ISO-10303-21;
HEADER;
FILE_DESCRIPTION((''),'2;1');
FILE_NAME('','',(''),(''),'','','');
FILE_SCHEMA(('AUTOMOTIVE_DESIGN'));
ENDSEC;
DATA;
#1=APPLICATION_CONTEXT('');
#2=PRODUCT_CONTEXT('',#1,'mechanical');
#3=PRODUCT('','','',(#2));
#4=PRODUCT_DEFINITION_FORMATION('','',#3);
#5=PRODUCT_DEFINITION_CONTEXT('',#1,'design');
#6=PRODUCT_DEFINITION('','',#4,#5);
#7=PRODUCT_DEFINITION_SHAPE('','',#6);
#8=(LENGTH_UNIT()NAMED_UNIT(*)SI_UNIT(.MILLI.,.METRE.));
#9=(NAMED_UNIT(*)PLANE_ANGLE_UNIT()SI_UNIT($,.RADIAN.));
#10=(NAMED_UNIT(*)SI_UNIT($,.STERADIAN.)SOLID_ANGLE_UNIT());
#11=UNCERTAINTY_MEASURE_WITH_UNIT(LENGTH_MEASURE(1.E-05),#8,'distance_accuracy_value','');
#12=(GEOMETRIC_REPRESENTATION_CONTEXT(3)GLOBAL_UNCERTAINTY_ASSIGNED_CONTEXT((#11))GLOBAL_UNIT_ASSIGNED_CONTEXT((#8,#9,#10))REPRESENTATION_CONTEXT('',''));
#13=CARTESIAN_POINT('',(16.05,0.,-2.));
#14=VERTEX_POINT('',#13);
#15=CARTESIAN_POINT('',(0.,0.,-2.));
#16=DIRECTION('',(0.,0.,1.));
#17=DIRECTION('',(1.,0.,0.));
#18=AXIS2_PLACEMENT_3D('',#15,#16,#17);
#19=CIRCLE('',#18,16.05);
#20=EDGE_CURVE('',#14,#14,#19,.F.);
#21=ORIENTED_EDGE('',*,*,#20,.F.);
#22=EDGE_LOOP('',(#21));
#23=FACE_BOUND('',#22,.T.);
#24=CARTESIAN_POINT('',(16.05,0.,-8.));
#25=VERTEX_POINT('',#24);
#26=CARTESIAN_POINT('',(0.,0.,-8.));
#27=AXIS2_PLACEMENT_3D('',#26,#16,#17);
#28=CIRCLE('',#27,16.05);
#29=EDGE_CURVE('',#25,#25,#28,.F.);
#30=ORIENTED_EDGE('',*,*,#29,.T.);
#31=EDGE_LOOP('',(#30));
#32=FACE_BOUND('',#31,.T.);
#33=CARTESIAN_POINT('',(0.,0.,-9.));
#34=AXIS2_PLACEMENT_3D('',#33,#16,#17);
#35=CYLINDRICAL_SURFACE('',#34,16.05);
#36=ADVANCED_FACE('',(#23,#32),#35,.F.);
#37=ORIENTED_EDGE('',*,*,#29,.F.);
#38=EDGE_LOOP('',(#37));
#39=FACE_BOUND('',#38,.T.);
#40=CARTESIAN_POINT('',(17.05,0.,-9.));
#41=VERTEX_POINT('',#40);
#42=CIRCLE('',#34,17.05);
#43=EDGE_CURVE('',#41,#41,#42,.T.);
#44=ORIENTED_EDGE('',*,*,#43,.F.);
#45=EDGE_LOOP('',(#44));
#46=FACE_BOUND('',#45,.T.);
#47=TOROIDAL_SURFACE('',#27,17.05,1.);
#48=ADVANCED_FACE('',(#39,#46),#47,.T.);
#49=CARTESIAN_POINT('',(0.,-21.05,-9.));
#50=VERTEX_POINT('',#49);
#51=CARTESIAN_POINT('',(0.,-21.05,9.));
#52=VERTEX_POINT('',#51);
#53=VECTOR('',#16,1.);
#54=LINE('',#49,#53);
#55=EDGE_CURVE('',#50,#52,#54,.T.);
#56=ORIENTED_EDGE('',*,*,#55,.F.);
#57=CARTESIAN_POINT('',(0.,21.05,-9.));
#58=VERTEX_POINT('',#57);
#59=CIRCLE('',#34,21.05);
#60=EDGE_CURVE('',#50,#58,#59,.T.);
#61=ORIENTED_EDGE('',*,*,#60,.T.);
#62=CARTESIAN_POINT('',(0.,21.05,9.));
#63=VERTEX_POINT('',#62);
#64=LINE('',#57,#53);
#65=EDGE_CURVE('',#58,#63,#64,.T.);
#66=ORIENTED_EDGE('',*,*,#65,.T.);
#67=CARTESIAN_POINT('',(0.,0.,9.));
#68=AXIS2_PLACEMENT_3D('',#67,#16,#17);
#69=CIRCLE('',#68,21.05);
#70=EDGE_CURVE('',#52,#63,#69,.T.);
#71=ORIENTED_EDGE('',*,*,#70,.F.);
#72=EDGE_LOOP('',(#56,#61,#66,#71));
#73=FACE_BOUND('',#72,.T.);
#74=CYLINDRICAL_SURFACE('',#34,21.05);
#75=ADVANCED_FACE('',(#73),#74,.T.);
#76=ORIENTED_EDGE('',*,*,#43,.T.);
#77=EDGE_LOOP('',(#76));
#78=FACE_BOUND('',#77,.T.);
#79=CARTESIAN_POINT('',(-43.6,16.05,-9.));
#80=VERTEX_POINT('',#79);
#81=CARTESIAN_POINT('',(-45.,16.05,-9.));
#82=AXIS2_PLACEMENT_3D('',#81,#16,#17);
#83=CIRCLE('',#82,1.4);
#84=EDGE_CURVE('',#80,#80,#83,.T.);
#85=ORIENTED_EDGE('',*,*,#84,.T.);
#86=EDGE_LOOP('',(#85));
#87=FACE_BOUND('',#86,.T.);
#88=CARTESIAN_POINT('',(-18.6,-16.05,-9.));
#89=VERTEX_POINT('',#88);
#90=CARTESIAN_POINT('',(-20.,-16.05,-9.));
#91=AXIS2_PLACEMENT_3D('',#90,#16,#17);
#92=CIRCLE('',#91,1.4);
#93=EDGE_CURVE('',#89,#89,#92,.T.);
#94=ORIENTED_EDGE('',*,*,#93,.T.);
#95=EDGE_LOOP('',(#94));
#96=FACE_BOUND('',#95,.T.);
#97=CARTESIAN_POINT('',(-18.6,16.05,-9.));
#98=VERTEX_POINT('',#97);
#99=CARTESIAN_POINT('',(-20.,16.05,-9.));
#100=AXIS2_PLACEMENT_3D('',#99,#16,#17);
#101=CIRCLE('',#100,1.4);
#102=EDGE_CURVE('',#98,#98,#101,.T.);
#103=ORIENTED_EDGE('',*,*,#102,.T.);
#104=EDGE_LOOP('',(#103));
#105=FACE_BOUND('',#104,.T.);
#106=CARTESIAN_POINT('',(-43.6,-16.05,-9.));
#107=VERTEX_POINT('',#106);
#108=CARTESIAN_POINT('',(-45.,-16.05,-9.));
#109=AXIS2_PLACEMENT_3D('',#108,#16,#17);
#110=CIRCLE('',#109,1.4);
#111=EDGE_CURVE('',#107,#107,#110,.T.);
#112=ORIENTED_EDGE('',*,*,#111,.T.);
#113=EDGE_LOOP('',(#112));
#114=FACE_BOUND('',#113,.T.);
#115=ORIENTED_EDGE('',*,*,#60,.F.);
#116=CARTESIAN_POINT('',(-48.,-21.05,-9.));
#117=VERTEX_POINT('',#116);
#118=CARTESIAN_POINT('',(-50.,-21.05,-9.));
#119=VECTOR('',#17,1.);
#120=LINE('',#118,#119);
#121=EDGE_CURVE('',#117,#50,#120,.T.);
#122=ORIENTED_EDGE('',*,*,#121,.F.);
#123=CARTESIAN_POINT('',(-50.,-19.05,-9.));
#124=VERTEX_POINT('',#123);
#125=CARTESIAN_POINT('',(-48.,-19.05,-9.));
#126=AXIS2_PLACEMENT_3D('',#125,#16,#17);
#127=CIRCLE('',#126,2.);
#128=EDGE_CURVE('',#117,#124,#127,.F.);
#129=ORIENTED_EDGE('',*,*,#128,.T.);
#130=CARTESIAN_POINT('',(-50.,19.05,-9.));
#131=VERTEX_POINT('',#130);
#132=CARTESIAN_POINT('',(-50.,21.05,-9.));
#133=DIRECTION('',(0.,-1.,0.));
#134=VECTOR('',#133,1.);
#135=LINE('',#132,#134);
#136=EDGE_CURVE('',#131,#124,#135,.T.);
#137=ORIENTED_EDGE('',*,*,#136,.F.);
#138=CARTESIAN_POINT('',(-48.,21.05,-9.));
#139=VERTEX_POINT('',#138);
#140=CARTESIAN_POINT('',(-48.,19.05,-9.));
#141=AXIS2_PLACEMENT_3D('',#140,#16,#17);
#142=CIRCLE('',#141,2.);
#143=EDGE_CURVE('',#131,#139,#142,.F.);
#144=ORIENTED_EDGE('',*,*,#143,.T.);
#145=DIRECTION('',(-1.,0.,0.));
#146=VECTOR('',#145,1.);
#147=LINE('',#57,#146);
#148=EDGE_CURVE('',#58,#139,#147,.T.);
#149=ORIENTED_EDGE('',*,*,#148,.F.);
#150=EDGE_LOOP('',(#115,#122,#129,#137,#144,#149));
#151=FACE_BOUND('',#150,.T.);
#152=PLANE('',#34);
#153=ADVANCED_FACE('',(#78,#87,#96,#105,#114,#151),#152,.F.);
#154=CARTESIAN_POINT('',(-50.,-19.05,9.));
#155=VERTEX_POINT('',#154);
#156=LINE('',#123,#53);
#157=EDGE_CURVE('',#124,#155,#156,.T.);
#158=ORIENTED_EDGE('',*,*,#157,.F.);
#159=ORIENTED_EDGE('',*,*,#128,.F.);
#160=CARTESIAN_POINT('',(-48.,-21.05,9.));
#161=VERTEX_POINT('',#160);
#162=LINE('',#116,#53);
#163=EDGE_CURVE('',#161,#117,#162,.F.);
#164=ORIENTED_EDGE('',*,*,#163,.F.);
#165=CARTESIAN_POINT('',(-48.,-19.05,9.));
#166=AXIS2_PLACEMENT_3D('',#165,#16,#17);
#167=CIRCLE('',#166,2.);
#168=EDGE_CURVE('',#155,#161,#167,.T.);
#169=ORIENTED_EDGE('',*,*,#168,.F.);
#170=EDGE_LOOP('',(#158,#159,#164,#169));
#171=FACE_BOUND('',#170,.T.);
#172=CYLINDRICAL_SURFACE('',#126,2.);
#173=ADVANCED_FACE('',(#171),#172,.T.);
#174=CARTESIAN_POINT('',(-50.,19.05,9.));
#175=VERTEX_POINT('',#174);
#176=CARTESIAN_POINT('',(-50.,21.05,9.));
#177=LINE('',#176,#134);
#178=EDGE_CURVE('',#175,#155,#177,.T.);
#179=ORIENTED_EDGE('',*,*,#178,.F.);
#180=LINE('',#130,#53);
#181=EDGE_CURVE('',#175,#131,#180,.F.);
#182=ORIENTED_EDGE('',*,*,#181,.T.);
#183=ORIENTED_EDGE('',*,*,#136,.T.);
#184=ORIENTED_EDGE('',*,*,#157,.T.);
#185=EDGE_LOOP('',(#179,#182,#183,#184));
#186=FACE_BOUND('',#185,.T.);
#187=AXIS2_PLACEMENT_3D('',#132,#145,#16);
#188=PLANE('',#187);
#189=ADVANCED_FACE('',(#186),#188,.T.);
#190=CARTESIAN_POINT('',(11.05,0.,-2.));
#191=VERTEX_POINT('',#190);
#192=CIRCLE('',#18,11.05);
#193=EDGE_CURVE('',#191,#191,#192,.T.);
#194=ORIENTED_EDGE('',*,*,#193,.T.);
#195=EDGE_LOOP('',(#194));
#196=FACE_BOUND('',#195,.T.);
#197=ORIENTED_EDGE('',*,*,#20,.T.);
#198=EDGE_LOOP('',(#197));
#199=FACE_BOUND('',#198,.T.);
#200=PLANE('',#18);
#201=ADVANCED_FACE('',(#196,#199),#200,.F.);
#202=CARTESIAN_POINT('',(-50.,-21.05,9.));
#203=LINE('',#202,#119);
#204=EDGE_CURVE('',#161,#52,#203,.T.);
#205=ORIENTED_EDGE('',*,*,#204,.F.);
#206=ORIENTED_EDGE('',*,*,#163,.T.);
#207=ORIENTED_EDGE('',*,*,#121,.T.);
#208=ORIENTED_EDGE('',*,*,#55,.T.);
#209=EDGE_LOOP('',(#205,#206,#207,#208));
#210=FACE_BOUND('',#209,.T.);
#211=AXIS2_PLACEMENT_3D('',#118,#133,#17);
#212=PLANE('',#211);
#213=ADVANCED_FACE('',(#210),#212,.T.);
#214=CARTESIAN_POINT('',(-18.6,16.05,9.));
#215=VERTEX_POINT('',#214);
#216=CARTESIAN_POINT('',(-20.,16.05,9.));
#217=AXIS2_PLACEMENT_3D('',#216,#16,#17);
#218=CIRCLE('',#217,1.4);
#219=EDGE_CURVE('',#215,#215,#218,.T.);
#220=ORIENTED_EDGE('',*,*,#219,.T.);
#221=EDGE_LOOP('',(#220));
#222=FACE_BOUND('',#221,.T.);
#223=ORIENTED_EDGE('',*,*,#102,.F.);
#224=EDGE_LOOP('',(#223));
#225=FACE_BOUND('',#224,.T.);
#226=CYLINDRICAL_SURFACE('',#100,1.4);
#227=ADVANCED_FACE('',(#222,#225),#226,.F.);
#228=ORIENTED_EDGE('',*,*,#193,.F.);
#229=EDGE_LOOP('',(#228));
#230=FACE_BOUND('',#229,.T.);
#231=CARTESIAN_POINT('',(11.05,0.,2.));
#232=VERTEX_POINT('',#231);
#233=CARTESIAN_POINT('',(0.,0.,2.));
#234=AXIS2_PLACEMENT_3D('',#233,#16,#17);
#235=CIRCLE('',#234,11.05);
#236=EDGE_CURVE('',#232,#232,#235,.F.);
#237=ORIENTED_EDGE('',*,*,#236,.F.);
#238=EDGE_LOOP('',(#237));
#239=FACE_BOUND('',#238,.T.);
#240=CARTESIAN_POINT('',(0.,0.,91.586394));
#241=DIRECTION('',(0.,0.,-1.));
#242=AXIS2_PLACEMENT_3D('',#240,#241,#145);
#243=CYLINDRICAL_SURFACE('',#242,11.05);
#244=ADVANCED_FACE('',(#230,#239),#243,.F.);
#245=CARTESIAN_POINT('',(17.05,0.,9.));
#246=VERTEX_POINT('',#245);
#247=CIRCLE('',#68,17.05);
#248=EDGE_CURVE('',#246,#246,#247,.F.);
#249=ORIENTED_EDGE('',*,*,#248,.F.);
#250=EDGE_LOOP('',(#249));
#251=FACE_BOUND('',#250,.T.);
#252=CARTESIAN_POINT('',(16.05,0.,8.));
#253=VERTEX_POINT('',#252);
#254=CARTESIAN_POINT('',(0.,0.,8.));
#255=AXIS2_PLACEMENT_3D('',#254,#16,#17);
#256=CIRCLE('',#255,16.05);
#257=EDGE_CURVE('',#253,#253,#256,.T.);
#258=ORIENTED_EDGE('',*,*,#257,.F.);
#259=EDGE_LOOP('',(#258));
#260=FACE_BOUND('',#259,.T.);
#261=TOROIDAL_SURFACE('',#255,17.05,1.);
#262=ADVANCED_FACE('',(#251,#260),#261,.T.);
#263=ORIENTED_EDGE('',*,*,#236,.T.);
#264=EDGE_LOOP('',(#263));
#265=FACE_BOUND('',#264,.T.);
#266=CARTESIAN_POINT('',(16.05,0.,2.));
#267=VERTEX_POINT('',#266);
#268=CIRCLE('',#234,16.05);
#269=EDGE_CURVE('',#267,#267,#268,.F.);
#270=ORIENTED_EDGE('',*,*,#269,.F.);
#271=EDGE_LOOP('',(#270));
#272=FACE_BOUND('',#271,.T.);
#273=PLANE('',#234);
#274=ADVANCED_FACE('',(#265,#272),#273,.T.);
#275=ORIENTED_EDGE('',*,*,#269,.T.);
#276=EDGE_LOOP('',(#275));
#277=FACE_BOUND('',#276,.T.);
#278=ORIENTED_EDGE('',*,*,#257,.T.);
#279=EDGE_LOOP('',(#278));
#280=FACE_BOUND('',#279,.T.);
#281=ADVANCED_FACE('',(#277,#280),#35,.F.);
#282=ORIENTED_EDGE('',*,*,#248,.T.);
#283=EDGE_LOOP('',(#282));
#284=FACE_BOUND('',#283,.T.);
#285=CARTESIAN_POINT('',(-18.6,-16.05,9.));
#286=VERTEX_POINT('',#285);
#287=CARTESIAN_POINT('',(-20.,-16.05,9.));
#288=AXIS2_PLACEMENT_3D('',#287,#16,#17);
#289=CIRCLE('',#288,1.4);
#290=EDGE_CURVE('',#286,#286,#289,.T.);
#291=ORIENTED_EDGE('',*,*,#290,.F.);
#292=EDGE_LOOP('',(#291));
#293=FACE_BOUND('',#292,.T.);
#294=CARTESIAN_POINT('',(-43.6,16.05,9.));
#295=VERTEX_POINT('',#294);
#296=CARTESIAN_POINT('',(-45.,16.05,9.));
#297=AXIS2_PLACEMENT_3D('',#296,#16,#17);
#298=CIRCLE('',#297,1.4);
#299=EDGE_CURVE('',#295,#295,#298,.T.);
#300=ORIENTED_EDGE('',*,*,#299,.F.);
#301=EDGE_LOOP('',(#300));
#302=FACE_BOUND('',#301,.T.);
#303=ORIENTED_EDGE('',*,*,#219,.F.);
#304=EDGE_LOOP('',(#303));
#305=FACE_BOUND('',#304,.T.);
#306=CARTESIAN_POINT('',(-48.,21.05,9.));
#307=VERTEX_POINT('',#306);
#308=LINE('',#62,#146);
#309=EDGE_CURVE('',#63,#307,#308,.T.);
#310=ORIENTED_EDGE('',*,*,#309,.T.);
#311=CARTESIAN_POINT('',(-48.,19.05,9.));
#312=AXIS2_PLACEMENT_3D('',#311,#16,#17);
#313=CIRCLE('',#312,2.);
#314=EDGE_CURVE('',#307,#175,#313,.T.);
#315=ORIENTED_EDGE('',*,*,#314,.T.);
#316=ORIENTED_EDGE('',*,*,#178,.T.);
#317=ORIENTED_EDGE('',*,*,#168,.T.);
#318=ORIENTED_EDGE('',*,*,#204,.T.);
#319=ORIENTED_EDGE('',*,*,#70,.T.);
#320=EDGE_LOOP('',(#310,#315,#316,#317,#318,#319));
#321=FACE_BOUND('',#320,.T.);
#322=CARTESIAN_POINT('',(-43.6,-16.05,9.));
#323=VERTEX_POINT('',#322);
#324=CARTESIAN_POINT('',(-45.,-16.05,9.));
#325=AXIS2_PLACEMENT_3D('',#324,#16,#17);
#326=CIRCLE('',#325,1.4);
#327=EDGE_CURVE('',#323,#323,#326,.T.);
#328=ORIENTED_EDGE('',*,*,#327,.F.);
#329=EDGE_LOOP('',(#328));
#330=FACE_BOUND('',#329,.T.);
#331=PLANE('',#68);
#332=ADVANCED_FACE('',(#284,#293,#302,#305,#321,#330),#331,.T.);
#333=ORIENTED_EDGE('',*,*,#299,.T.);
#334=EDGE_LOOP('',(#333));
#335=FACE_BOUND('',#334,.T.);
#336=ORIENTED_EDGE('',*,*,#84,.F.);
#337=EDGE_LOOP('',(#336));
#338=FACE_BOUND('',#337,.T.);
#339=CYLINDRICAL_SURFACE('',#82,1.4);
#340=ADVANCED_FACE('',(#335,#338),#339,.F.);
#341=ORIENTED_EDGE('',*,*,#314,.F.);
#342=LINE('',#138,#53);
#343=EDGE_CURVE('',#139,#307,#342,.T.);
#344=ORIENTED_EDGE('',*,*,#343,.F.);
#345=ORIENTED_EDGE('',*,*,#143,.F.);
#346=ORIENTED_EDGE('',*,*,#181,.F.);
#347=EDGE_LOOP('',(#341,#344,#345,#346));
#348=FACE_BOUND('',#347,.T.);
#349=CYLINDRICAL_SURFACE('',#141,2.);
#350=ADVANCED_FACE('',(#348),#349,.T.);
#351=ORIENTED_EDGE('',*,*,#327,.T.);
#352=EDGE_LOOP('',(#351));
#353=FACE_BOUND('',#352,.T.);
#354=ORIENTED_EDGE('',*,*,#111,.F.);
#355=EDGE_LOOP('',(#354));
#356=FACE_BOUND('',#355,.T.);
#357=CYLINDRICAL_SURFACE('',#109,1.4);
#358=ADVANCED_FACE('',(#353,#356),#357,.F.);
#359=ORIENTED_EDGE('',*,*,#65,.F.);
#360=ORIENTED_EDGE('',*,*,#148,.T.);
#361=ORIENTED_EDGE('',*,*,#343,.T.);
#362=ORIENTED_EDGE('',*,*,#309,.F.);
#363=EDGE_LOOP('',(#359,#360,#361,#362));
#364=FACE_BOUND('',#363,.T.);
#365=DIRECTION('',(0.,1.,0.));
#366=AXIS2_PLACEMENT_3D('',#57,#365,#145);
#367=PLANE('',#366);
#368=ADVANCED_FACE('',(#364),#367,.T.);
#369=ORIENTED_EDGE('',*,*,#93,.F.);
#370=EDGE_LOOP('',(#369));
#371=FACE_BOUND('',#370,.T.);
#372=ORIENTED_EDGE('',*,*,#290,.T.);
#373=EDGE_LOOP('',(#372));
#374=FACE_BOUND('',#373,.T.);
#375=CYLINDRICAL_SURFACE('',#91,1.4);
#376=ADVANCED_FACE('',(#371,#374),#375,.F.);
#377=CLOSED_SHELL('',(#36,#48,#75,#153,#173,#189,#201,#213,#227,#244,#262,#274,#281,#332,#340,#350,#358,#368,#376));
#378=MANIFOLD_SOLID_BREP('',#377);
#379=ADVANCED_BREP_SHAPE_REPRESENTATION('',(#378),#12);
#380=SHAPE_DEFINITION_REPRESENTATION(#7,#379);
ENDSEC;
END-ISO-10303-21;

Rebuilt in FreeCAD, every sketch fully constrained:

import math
import FreeCAD as App
import Part
import Sketcher
from FreeCAD import Vector


def edges_at(feature, points):
    """Names of the edges that pass closest to the given points."""
    edges = feature.Shape.Edges
    near = lambda p: min(range(len(edges)), key=lambda i: edges[i].distToShape(Part.Vertex(*p))[0])
    return sorted({f"Edge{near(p) + 1}" for p in points})

doc = App.newDocument("Part")
body = doc.addObject("PartDesign::Body", "Body")

sketch1 = body.newObject("Sketcher::SketchObject", "Sketch")
sketch1.AttachmentSupport = (doc.getObject("XY_Plane"), [""])
sketch1.MapMode = "FlatFace"
sketch1.addGeometry(Part.LineSegment(Vector(0, 21.05, 0), Vector(-50, 21.05, 0)), False)
sketch1.addGeometry(Part.LineSegment(Vector(-50, 21.05, 0), Vector(-50, -21.05, 0)), False)
sketch1.addGeometry(Part.LineSegment(Vector(-50, -21.05, 0), Vector(0, -21.05, 0)), False)
sketch1.addGeometry(Part.ArcOfCircle(Part.Circle(Vector(0, 0, 0), Vector(0, 0, 1), 21.05), math.radians(-90), math.radians(90)), False)
sketch1.addGeometry(Part.Circle(Vector(0, 0, 0), Vector(0, 0, 1), 16.05), False)
sketch1.addConstraint(Sketcher.Constraint("Coincident", 0, 2, 1, 1))
sketch1.addConstraint(Sketcher.Constraint("Coincident", 1, 2, 2, 1))
sketch1.addConstraint(Sketcher.Constraint("Tangent", 2, 2, 3, 1))
sketch1.addConstraint(Sketcher.Constraint("Tangent", 3, 2, 0, 1))
sketch1.addConstraint(Sketcher.Constraint("Horizontal", 0))
sketch1.addConstraint(Sketcher.Constraint("Vertical", 1))
sketch1.addConstraint(Sketcher.Constraint("Horizontal", 2))
sketch1.addConstraint(Sketcher.Constraint("Coincident", 3, 3, -1, 1))
sketch1.addConstraint(Sketcher.Constraint("Coincident", 4, 3, -1, 1))
sketch1.addConstraint(Sketcher.Constraint("Diameter", 4, 32.1))
sketch1.addConstraint(Sketcher.Constraint("DistanceX", 0, 2, 0, 1, 50.0))
sketch1.addConstraint(Sketcher.Constraint("Radius", 3, 21.05))
pad1 = body.newObject("PartDesign::Pad", "Pad")
pad1.Profile = sketch1
pad1.Type = "TwoLengths"
pad1.Length = 9
pad1.Length2 = 9

sketch2 = body.newObject("Sketcher::SketchObject", "Sketch001")
sketch2.AttachmentSupport = (doc.getObject("XY_Plane"), [""])
sketch2.MapMode = "FlatFace"
sketch2.addGeometry(Part.LineSegment(Vector(0, -21.05, 0), Vector(-50, -21.05, 0)), False)
sketch2.addGeometry(Part.LineSegment(Vector(-50, -21.05, 0), Vector(-50, 21.05, 0)), False)
sketch2.addGeometry(Part.LineSegment(Vector(-50, 21.05, 0), Vector(0, 21.05, 0)), False)
sketch2.addGeometry(Part.ArcOfCircle(Part.Circle(Vector(0, 0, 0), Vector(0, 0, 1), 21.05), math.radians(-90), math.radians(90)), False)
sketch2.addGeometry(Part.Circle(Vector(0, 0, 0), Vector(0, 0, 1), 11.05), False)
sketch2.addConstraint(Sketcher.Constraint("Coincident", 0, 2, 1, 1))
sketch2.addConstraint(Sketcher.Constraint("Coincident", 1, 2, 2, 1))
sketch2.addConstraint(Sketcher.Constraint("Tangent", 2, 2, 3, 2))
sketch2.addConstraint(Sketcher.Constraint("Tangent", 3, 1, 0, 1))
sketch2.addConstraint(Sketcher.Constraint("Horizontal", 0))
sketch2.addConstraint(Sketcher.Constraint("Vertical", 1))
sketch2.addConstraint(Sketcher.Constraint("Horizontal", 2))
sketch2.addConstraint(Sketcher.Constraint("Coincident", 3, 3, -1, 1))
sketch2.addConstraint(Sketcher.Constraint("Coincident", 4, 3, -1, 1))
sketch2.addConstraint(Sketcher.Constraint("Diameter", 4, 22.1))
sketch2.addConstraint(Sketcher.Constraint("DistanceX", 0, 2, 0, 1, 50.0))
sketch2.addConstraint(Sketcher.Constraint("Radius", 3, 21.05))
pad2 = body.newObject("PartDesign::Pad", "Pad001")
pad2.Profile = sketch2
pad2.Type = "TwoLengths"
pad2.Length = 2
pad2.Length2 = 2
pad2.Reversed = True

sketch3 = body.newObject("Sketcher::SketchObject", "Sketch002")
sketch3.AttachmentSupport = (doc.getObject("XY_Plane"), [""])
sketch3.MapMode = "FlatFace"
sketch3.AttachmentOffset = App.Placement(Vector(0, 0, 9), App.Rotation())
sketch3.addGeometry(Part.Circle(Vector(-45, 16.05, 0), Vector(0, 0, 1), 1.4), False)
sketch3.addGeometry(Part.Circle(Vector(-20, 16.05, 0), Vector(0, 0, 1), 1.4), False)
sketch3.addGeometry(Part.Circle(Vector(-20, -16.05, 0), Vector(0, 0, 1), 1.4), False)
sketch3.addGeometry(Part.Circle(Vector(-45, -16.05, 0), Vector(0, 0, 1), 1.4), False)
sketch3.addConstraint(Sketcher.Constraint("Equal", 0, 1))
sketch3.addConstraint(Sketcher.Constraint("Equal", 1, 2))
sketch3.addConstraint(Sketcher.Constraint("Equal", 2, 3))
sketch3.addConstraint(Sketcher.Constraint("Symmetric", 1, 3, 2, 3, -1))
sketch3.addConstraint(Sketcher.Constraint("Symmetric", 0, 3, 3, 3, -1))
sketch3.addConstraint(Sketcher.Constraint("Horizontal", 0, 3, 1, 3))
sketch3.addConstraint(Sketcher.Constraint("Diameter", 0, 2.8))
sketch3.addConstraint(Sketcher.Constraint("DistanceX", 0, 3, -1, 1, 45.0))
sketch3.addConstraint(Sketcher.Constraint("DistanceX", 1, 3, -1, 1, 20.0))
sketch3.addConstraint(Sketcher.Constraint("DistanceY", 2, 3, 1, 3, 32.1))
pocket1 = body.newObject("PartDesign::Pocket", "Pocket")
pocket1.Profile = sketch3
pocket1.Type = "ThroughAll"
doc.recompute()

fillet = body.newObject("PartDesign::Fillet", "Fillet")
fillet.Base = (pocket1, edges_at(pocket1, [(-50, -21.05, 0), (-50, 21.05, 0)]))
fillet.Radius = 2
doc.recompute()

fillet2 = body.newObject("PartDesign::Fillet", "Fillet001")
fillet2.Base = (fillet, edges_at(fillet, [(-16.05, 0, -9), (-16.05, 0, 9)]))
fillet2.Radius = 1

doc.recompute()
